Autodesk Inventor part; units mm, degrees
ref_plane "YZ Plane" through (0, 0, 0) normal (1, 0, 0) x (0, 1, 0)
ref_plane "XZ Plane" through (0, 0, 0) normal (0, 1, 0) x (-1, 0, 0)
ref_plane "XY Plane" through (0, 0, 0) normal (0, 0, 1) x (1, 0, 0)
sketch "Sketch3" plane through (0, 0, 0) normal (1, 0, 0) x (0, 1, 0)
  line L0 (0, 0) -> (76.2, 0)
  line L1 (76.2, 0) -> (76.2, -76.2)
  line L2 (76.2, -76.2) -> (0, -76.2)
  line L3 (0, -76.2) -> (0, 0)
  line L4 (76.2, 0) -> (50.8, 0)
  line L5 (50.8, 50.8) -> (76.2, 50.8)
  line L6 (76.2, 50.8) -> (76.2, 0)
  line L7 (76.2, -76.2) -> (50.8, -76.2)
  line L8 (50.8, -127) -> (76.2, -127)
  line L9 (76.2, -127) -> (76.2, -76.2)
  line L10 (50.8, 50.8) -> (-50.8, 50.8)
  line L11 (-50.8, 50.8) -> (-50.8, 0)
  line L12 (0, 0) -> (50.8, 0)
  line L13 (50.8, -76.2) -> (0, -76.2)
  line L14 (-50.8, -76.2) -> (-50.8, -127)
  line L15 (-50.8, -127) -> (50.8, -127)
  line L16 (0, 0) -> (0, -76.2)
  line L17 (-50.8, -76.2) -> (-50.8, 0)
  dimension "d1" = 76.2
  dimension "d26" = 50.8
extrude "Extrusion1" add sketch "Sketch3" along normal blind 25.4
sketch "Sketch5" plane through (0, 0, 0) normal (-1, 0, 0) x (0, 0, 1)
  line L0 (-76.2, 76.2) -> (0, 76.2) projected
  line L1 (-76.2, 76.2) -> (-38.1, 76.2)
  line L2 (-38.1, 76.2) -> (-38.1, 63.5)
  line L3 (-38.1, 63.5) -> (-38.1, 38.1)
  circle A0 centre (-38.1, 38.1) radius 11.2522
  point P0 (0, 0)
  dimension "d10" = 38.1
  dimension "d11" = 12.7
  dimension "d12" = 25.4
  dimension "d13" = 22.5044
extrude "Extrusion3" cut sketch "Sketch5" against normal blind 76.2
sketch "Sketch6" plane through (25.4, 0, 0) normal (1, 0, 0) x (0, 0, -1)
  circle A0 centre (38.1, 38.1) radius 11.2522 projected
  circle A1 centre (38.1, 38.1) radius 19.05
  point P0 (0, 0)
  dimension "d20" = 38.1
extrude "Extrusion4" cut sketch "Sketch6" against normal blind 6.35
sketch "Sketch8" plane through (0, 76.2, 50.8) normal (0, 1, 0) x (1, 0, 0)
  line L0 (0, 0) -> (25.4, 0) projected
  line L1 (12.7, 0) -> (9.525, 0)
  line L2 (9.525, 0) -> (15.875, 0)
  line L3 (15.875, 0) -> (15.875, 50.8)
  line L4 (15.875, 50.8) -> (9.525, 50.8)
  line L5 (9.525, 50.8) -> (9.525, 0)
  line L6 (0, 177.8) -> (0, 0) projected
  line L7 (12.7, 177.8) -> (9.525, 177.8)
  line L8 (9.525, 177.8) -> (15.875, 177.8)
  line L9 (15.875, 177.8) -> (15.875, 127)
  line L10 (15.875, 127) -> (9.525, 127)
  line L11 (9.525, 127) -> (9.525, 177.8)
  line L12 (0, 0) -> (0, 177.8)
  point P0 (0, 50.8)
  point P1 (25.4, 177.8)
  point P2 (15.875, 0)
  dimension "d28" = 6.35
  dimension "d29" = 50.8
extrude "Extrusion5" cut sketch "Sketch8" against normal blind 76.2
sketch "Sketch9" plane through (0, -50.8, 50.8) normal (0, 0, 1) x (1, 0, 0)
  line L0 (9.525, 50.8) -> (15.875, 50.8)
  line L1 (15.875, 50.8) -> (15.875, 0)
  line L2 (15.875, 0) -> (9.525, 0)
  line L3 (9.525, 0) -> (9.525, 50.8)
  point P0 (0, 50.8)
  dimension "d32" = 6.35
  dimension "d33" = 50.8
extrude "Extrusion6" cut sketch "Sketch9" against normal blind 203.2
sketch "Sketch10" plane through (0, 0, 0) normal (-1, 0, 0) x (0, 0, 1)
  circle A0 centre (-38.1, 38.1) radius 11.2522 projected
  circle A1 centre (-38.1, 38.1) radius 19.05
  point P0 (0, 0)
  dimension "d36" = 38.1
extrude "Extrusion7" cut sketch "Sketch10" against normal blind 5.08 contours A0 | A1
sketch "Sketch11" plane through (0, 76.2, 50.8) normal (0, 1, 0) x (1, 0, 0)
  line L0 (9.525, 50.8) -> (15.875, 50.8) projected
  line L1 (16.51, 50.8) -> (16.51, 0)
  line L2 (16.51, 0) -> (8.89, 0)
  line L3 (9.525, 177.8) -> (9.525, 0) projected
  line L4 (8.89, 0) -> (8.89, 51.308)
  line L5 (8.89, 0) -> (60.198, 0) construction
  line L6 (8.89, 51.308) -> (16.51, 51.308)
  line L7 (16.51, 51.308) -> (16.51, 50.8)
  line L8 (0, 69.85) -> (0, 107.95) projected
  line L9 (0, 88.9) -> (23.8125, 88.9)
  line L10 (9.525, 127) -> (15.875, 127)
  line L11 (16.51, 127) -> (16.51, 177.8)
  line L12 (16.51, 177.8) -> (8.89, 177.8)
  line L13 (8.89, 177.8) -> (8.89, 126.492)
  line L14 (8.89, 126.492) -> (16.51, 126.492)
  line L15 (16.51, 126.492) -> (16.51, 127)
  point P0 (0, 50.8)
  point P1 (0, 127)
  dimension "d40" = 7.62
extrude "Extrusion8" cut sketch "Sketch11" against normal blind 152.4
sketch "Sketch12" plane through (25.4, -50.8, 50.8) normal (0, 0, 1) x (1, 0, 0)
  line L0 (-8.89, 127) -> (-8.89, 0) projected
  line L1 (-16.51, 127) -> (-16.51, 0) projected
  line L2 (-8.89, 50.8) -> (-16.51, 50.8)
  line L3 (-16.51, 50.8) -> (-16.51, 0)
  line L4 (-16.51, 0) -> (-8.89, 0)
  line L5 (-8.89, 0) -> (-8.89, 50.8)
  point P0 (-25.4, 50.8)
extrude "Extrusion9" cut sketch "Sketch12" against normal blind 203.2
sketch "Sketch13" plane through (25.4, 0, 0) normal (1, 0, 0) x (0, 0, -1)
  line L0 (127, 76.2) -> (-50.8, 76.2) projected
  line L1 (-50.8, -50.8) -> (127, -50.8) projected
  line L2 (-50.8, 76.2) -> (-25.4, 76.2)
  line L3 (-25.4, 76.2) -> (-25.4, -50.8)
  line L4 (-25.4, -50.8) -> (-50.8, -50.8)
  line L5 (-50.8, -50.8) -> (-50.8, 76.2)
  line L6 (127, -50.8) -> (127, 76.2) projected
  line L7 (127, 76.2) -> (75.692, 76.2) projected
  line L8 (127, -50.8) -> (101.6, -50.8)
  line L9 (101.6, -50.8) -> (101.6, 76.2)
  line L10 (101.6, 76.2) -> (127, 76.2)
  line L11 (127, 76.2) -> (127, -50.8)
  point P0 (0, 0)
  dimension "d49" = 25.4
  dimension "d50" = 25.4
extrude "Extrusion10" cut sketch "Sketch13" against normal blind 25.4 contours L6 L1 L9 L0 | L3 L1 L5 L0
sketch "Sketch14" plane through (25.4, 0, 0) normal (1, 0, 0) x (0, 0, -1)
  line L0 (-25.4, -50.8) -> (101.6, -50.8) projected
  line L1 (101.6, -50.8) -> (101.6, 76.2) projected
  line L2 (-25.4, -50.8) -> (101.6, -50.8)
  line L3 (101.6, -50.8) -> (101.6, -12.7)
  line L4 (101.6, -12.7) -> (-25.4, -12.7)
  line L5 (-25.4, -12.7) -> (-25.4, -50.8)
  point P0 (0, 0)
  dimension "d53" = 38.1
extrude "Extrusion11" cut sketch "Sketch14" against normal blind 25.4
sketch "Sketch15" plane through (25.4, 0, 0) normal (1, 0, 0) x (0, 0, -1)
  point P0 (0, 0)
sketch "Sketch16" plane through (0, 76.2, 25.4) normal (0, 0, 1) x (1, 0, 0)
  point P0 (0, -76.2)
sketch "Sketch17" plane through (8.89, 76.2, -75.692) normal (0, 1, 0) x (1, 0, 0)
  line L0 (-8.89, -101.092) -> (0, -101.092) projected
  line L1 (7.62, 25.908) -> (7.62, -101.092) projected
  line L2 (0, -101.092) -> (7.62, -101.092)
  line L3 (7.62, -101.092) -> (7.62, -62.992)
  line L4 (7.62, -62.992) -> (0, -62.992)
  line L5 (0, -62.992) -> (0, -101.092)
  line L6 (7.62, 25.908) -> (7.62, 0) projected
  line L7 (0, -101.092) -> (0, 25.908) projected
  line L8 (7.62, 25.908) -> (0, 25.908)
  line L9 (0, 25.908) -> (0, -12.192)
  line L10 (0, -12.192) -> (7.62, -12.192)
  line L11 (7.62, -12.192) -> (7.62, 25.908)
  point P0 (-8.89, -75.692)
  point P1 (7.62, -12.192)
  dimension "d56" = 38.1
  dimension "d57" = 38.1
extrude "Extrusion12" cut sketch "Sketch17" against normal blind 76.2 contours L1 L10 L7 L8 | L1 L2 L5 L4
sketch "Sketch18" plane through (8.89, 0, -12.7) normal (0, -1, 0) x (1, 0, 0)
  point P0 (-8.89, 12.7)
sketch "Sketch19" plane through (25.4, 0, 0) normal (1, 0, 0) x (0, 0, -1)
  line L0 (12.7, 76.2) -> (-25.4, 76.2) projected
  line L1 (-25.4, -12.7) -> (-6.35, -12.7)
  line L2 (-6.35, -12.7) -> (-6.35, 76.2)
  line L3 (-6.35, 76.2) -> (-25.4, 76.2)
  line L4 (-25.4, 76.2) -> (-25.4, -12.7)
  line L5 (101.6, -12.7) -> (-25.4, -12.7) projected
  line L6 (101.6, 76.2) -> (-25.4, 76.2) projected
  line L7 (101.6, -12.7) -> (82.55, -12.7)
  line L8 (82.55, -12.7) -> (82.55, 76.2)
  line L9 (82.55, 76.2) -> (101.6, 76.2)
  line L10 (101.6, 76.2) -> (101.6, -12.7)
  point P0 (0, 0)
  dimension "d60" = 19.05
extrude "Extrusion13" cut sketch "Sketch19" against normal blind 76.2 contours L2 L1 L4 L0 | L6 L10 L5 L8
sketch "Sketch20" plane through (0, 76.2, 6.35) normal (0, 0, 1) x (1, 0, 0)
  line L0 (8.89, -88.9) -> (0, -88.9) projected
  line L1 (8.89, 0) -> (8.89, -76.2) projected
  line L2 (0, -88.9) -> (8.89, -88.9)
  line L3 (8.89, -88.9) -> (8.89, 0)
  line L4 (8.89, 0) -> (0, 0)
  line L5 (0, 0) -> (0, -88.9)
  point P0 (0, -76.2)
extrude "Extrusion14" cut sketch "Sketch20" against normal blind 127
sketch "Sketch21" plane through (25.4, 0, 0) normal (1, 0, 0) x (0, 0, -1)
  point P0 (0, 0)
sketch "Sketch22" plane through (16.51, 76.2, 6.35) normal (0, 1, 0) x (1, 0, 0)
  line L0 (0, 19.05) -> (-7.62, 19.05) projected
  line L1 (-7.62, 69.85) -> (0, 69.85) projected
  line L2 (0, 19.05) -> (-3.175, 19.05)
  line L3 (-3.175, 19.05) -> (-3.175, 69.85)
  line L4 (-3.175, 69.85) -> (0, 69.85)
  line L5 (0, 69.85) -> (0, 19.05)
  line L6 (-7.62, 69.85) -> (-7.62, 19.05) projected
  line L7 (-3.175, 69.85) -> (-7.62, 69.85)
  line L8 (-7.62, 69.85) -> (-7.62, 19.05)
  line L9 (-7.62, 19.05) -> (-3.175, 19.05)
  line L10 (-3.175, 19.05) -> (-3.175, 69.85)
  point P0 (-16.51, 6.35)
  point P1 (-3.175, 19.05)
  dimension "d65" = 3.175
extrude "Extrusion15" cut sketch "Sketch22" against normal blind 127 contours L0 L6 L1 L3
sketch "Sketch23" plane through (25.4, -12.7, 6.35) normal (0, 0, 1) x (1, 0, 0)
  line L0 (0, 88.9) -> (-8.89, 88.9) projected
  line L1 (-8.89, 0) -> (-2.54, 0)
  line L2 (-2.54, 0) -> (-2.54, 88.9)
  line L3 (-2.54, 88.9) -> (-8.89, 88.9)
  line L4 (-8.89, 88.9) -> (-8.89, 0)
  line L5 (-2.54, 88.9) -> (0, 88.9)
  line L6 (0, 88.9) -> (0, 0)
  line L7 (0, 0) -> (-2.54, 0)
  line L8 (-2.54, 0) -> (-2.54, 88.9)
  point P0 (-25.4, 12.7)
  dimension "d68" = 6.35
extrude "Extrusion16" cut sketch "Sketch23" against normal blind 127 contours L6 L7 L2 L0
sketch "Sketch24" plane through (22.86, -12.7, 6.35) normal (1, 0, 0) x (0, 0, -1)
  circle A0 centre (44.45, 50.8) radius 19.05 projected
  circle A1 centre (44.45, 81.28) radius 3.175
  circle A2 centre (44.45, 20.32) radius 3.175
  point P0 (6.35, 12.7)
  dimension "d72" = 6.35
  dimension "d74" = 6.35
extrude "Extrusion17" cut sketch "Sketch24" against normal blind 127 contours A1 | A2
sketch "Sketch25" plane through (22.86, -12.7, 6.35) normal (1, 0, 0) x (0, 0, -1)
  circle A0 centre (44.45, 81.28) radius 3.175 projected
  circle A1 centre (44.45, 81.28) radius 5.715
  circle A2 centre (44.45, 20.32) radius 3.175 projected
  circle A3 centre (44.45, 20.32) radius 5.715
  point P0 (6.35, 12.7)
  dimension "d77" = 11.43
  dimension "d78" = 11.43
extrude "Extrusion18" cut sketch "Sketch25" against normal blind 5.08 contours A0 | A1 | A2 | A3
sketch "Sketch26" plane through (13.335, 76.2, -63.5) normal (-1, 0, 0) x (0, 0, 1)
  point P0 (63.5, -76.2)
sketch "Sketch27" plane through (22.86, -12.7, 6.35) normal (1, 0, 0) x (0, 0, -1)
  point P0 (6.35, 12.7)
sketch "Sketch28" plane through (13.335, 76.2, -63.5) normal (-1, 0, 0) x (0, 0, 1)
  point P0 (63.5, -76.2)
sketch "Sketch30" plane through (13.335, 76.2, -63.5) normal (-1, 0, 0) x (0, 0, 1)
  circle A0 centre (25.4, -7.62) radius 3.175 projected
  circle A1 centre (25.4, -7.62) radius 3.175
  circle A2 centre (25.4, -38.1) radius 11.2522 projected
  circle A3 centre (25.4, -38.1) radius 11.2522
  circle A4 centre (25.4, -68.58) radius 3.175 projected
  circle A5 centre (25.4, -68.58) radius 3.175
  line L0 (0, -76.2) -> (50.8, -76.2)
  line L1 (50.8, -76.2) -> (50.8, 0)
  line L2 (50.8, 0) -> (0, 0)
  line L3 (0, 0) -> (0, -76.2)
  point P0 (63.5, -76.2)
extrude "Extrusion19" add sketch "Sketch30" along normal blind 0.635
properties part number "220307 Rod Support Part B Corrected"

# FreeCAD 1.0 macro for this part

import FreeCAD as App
import Part
import Sketcher
Q = App.Units.Quantity

doc = App.newDocument("Part")
body = doc.addObject("PartDesign::Body", "Body")

sketch1 = body.newObject("Sketcher::SketchObject", "Sketch")
sketch1.AttachmentSupport = (doc.getObject("YZ_Plane"), [""])
sketch1.MapMode = "FlatFace"
sketch1.addGeometry(Part.LineSegment(App.Vector(76, -127, 0), App.Vector(76, 51, 0)), False)
sketch1.addGeometry(Part.LineSegment(App.Vector(76, 51, 0), App.Vector(-51, 51, 0)), False)
sketch1.addGeometry(Part.LineSegment(App.Vector(-51, 51, 0), App.Vector(-51, -127, 0)), False)
sketch1.addGeometry(Part.LineSegment(App.Vector(-51, -127, 0), App.Vector(76, -127, 0)), False)
sketch1.addConstraint(Sketcher.Constraint("Coincident", 0, 2, 1, 1))
sketch1.addConstraint(Sketcher.Constraint("Coincident", 1, 2, 2, 1))
sketch1.addConstraint(Sketcher.Constraint("Coincident", 2, 2, 3, 1))
sketch1.addConstraint(Sketcher.Constraint("Coincident", 3, 2, 0, 1))
sketch1.addConstraint(Sketcher.Constraint("Vertical", 0))
sketch1.addConstraint(Sketcher.Constraint("Horizontal", 1))
sketch1.addConstraint(Sketcher.Constraint("Vertical", 2))
sketch1.addConstraint(Sketcher.Constraint("Horizontal", 3))
sketch1.addConstraint(Sketcher.Constraint("DistanceX", -1, 1, 0, 2, Q("3 in")))
sketch1.addConstraint(Sketcher.Constraint("DistanceY", -1, 1, 0, 2, Q("2 in")))
sketch1.addConstraint(Sketcher.Constraint("DistanceX", 1, 2, -1, 1, Q("2 in")))
sketch1.addConstraint(Sketcher.Constraint("DistanceY", 0, 1, 0, 2, Q("7 in")))
pad1 = body.newObject("PartDesign::Pad", "Pad")
pad1.Profile = sketch1
pad1.Length = Q("1 in")

sketch2 = body.newObject("Sketcher::SketchObject", "Sketch001")
sketch2.AttachmentSupport = (doc.getObject("YZ_Plane"), [""])
sketch2.MapMode = "FlatFace"
sketch2.addGeometry(Part.Circle(App.Vector(38, -38, 0), App.Vector(0, 0, 1), 11), False)
sketch2.addConstraint(Sketcher.Constraint("Diameter", 0, Q("0.886 in")))
sketch2.addConstraint(Sketcher.Constraint("DistanceX", -1, 1, 0, 3, Q("1.5 in")))
sketch2.addConstraint(Sketcher.Constraint("DistanceY", 0, 3, -1, 1, Q("1.5 in")))
pocket1 = body.newObject("PartDesign::Pocket", "Pocket")
pocket1.Profile = sketch2
pocket1.Length = Q("3 in")
pocket1.Reversed = True

sketch3 = body.newObject("Sketcher::SketchObject", "Sketch002")
sketch3.AttachmentSupport = (doc.getObject("YZ_Plane"), [""])
sketch3.MapMode = "FlatFace"
sketch3.AttachmentOffset = App.Placement(App.Vector(0, 0, 1 * 25.4), App.Rotation())
sketch3.addGeometry(Part.Circle(App.Vector(38, -38, 0), App.Vector(0, 0, 1), 19), False)
sketch3.addGeometry(Part.Circle(App.Vector(38, -38, 0), App.Vector(0, 0, 1), 11), False)
sketch3.addConstraint(Sketcher.Constraint("Coincident", 1, 3, 0, 3))
sketch3.addConstraint(Sketcher.Constraint("Diameter", 0, Q("1.5 in")))
sketch3.addConstraint(Sketcher.Constraint("DistanceX", -1, 1, 0, 3, Q("1.5 in")))
sketch3.addConstraint(Sketcher.Constraint("DistanceY", 0, 3, -1, 1, Q("1.5 in")))
sketch3.addConstraint(Sketcher.Constraint("Diameter", 1, Q("0.886 in")))
pocket2 = body.newObject("PartDesign::Pocket", "Pocket001")
pocket2.Profile = sketch3
pocket2.Length = Q("0.25 in")

sketch4 = body.newObject("Sketcher::SketchObject", "Sketch003")
sketch4.AttachmentSupport = (doc.getObject("XZ_Plane"), [""])
sketch4.MapMode = "FlatFace"
sketch4.AttachmentOffset = App.Placement(App.Vector(0, 0, -3 * 25.4), App.Rotation())
sketch4.addGeometry(Part.LineSegment(App.Vector(10, 0, 0), App.Vector(10, 51, 0)), False)
sketch4.addGeometry(Part.LineSegment(App.Vector(10, 51, 0), App.Vector(16, 51, 0)), False)
sketch4.addGeometry(Part.LineSegment(App.Vector(16, 51, 0), App.Vector(16, 0, 0)), False)
sketch4.addGeometry(Part.LineSegment(App.Vector(16, 0, 0), App.Vector(10, 0, 0)), False)
sketch4.addGeometry(Part.LineSegment(App.Vector(16, -127, 0), App.Vector(10, -127, 0)), False)
sketch4.addGeometry(Part.LineSegment(App.Vector(10, -127, 0), App.Vector(10, -76, 0)), False)
sketch4.addGeometry(Part.LineSegment(App.Vector(10, -76, 0), App.Vector(16, -76, 0)), False)
sketch4.addGeometry(Part.LineSegment(App.Vector(16, -76, 0), App.Vector(16, -127, 0)), False)
sketch4.addConstraint(Sketcher.Constraint("Coincident", 0, 2, 1, 1))
sketch4.addConstraint(Sketcher.Constraint("Coincident", 1, 2, 2, 1))
sketch4.addConstraint(Sketcher.Constraint("Coincident", 2, 2, 3, 1))
sketch4.addConstraint(Sketcher.Constraint("Coincident", 3, 2, 0, 1))
sketch4.addConstraint(Sketcher.Constraint("Coincident", 4, 2, 5, 1))
sketch4.addConstraint(Sketcher.Constraint("Coincident", 5, 2, 6, 1))
sketch4.addConstraint(Sketcher.Constraint("Coincident", 6, 2, 7, 1))
sketch4.addConstraint(Sketcher.Constraint("Coincident", 7, 2, 4, 1))
sketch4.addConstraint(Sketcher.Constraint("Vertical", 0))
sketch4.addConstraint(Sketcher.Constraint("Horizontal", 1))
sketch4.addConstraint(Sketcher.Constraint("Vertical", 2))
sketch4.addConstraint(Sketcher.Constraint("Horizontal", 3))
sketch4.addConstraint(Sketcher.Constraint("Horizontal", 4))
sketch4.addConstraint(Sketcher.Constraint("Vertical", 5))
sketch4.addConstraint(Sketcher.Constraint("Horizontal", 6))
sketch4.addConstraint(Sketcher.Constraint("Vertical", 7))
sketch4.addConstraint(Sketcher.Constraint("PointOnObject", 2, 2, -1))
sketch4.addConstraint(Sketcher.Constraint("Vertical", 3, 2, 4, 2))
sketch4.addConstraint(Sketcher.Constraint("Vertical", 2, 2, 6, 2))
sketch4.addConstraint(Sketcher.Constraint("Equal", 2, 5))
sketch4.addConstraint(Sketcher.Constraint("DistanceY", 0, 1, 0, 2, Q("2 in")))
sketch4.addConstraint(Sketcher.Constraint("DistanceX", 1, 1, 1, 2, Q("0.25 in")))
sketch4.addConstraint(Sketcher.Constraint("DistanceY", 4, 2, -1, 1, Q("5 in")))
sketch4.addConstraint(Sketcher.Constraint("DistanceX", -1, 1, 0, 2, Q("0.375 in")))
pocket3 = body.newObject("PartDesign::Pocket", "Pocket002")
pocket3.Profile = sketch4
pocket3.Length = Q("3 in")
pocket3.Reversed = True

sketch5 = body.newObject("Sketcher::SketchObject", "Sketch004")
sketch5.AttachmentSupport = (doc.getObject("XY_Plane"), [""])
sketch5.MapMode = "FlatFace"
sketch5.AttachmentOffset = App.Placement(App.Vector(0, 0, 2 * 25.4), App.Rotation())
sketch5.addGeometry(Part.LineSegment(App.Vector(16, 0, 0), App.Vector(10, 0, 0)), False)
sketch5.addGeometry(Part.LineSegment(App.Vector(10, 0, 0), App.Vector(10, -51, 0)), False)
sketch5.addGeometry(Part.LineSegment(App.Vector(10, -51, 0), App.Vector(16, -51, 0)), False)
sketch5.addGeometry(Part.LineSegment(App.Vector(16, -51, 0), App.Vector(16, 0, 0)), False)
sketch5.addConstraint(Sketcher.Constraint("Coincident", 0, 2, 1, 1))
sketch5.addConstraint(Sketcher.Constraint("Coincident", 1, 2, 2, 1))
sketch5.addConstraint(Sketcher.Constraint("Coincident", 2, 2, 3, 1))
sketch5.addConstraint(Sketcher.Constraint("Coincident", 3, 2, 0, 1))
sketch5.addConstraint(Sketcher.Constraint("Horizontal", 0))
sketch5.addConstraint(Sketcher.Constraint("Vertical", 1))
sketch5.addConstraint(Sketcher.Constraint("Horizontal", 2))
sketch5.addConstraint(Sketcher.Constraint("Vertical", 3))
sketch5.addConstraint(Sketcher.Constraint("PointOnObject", 0, 2, -1))
sketch5.addConstraint(Sketcher.Constraint("DistanceY", 1, 2, 1, 1, Q("2 in")))
sketch5.addConstraint(Sketcher.Constraint("DistanceX", 0, 2, 0, 1, Q("0.25 in")))
sketch5.addConstraint(Sketcher.Constraint("DistanceX", -1, 1, 0, 2, Q("0.375 in")))
pocket4 = body.newObject("PartDesign::Pocket", "Pocket003")
pocket4.Profile = sketch5
pocket4.Length = Q("8 in")

sketch6 = body.newObject("Sketcher::SketchObject", "Sketch005")
sketch6.AttachmentSupport = (doc.getObject("YZ_Plane"), [""])
sketch6.MapMode = "FlatFace"
sketch6.addGeometry(Part.Circle(App.Vector(38, -38, 0), App.Vector(0, 0, 1), 19), False)
sketch6.addConstraint(Sketcher.Constraint("Diameter", 0, Q("1.5 in")))
sketch6.addConstraint(Sketcher.Constraint("DistanceX", -1, 1, 0, 3, Q("1.5 in")))
sketch6.addConstraint(Sketcher.Constraint("DistanceY", 0, 3, -1, 1, Q("1.5 in")))
pocket5 = body.newObject("PartDesign::Pocket", "Pocket004")
pocket5.Profile = sketch6
pocket5.Length = Q("0.2 in")
pocket5.Reversed = True

sketch7 = body.newObject("Sketcher::SketchObject", "Sketch006")
sketch7.AttachmentSupport = (doc.getObject("XZ_Plane"), [""])
sketch7.MapMode = "FlatFace"
sketch7.AttachmentOffset = App.Placement(App.Vector(0, 0, -3 * 25.4), App.Rotation())
sketch7.addGeometry(Part.LineSegment(App.Vector(9, -76, 0), App.Vector(17, -76, 0)), False)
sketch7.addGeometry(Part.LineSegment(App.Vector(17, -76, 0), App.Vector(17, -127, 0)), False)
sketch7.addGeometry(Part.LineSegment(App.Vector(17, -127, 0), App.Vector(9, -127, 0)), False)
sketch7.addGeometry(Part.LineSegment(App.Vector(9, -127, 0), App.Vector(9, -76, 0)), False)
sketch7.addGeometry(Part.LineSegment(App.Vector(17, 51, 0), App.Vector(17, -1, 0)), False)
sketch7.addGeometry(Part.LineSegment(App.Vector(17, -1, 0), App.Vector(9, -1, 0)), False)
sketch7.addGeometry(Part.LineSegment(App.Vector(9, -1, 0), App.Vector(9, 51, 0)), False)
sketch7.addGeometry(Part.LineSegment(App.Vector(9, 51, 0), App.Vector(17, 51, 0)), False)
sketch7.addConstraint(Sketcher.Constraint("Coincident", 0, 2, 1, 1))
sketch7.addConstraint(Sketcher.Constraint("Coincident", 1, 2, 2, 1))
sketch7.addConstraint(Sketcher.Constraint("Coincident", 2, 2, 3, 1))
sketch7.addConstraint(Sketcher.Constraint("Coincident", 3, 2, 0, 1))
sketch7.addConstraint(Sketcher.Constraint("Coincident", 4, 2, 5, 1))
sketch7.addConstraint(Sketcher.Constraint("Coincident", 5, 2, 6, 1))
sketch7.addConstraint(Sketcher.Constraint("Coincident", 6, 2, 7, 1))
sketch7.addConstraint(Sketcher.Constraint("Coincident", 7, 2, 4, 1))
sketch7.addConstraint(Sketcher.Constraint("Horizontal", 0))
sketch7.addConstraint(Sketcher.Constraint("Vertical", 1))
sketch7.addConstraint(Sketcher.Constraint("Horizontal", 2))
sketch7.addConstraint(Sketcher.Constraint("Vertical", 3))
sketch7.addConstraint(Sketcher.Constraint("Vertical", 4))
sketch7.addConstraint(Sketcher.Constraint("Horizontal", 5))
sketch7.addConstraint(Sketcher.Constraint("Vertical", 6))
sketch7.addConstraint(Sketcher.Constraint("Horizontal", 7))
sketch7.addConstraint(Sketcher.Constraint("Vertical", 1, 2, 4, 2))
sketch7.addConstraint(Sketcher.Constraint("Vertical", 3, 2, 5, 2))
sketch7.addConstraint(Sketcher.Constraint("Equal", 3, 4))
sketch7.addConstraint(Sketcher.Constraint("DistanceX", 0, 1, 0, 2, Q("0.3 in")))
sketch7.addConstraint(Sketcher.Constraint("DistanceY", 1, 2, -1, 1, Q("5 in")))
sketch7.addConstraint(Sketcher.Constraint("DistanceY", -1, 1, 6, 2, Q("2 in")))
sketch7.addConstraint(Sketcher.Constraint("DistanceY", 1, 2, 1, 1, Q("2.02 in")))
sketch7.addConstraint(Sketcher.Constraint("DistanceX", -1, 1, 0, 2, Q("0.65 in")))
pocket6 = body.newObject("PartDesign::Pocket", "Pocket005")
pocket6.Profile = sketch7
pocket6.Length = Q("6 in")
pocket6.Reversed = True

sketch8 = body.newObject("Sketcher::SketchObject", "Sketch007")
sketch8.AttachmentSupport = (doc.getObject("XY_Plane"), [""])
sketch8.MapMode = "FlatFace"
sketch8.AttachmentOffset = App.Placement(App.Vector(0, 0, 2 * 25.4), App.Rotation())
sketch8.addGeometry(Part.LineSegment(App.Vector(17, -51, 0), App.Vector(17, 0, 0)), False)
sketch8.addGeometry(Part.LineSegment(App.Vector(17, 0, 0), App.Vector(9, 0, 0)), False)
sketch8.addGeometry(Part.LineSegment(App.Vector(9, 0, 0), App.Vector(9, -51, 0)), False)
sketch8.addGeometry(Part.LineSegment(App.Vector(9, -51, 0), App.Vector(17, -51, 0)), False)
sketch8.addConstraint(Sketcher.Constraint("Coincident", 0, 2, 1, 1))
sketch8.addConstraint(Sketcher.Constraint("Coincident", 1, 2, 2, 1))
sketch8.addConstraint(Sketcher.Constraint("Coincident", 2, 2, 3, 1))
sketch8.addConstraint(Sketcher.Constraint("Coincident", 3, 2, 0, 1))
sketch8.addConstraint(Sketcher.Constraint("Vertical", 0))
sketch8.addConstraint(Sketcher.Constraint("Horizontal", 1))
sketch8.addConstraint(Sketcher.Constraint("Vertical", 2))
sketch8.addConstraint(Sketcher.Constraint("Horizontal", 3))
sketch8.addConstraint(Sketcher.Constraint("PointOnObject", 0, 2, -1))
sketch8.addConstraint(Sketcher.Constraint("DistanceY", 0, 1, 0, 2, Q("2 in")))
sketch8.addConstraint(Sketcher.Constraint("DistanceX", 1, 2, 1, 1, Q("0.3 in")))
sketch8.addConstraint(Sketcher.Constraint("DistanceX", -1, 1, 0, 2, Q("0.65 in")))
pocket7 = body.newObject("PartDesign::Pocket", "Pocket006")
pocket7.Profile = sketch8
pocket7.Length = Q("8 in")

sketch9 = body.newObject("Sketcher::SketchObject", "Sketch008")
sketch9.AttachmentSupport = (doc.getObject("YZ_Plane"), [""])
sketch9.MapMode = "FlatFace"
sketch9.AttachmentOffset = App.Placement(App.Vector(0, 0, 1 * 25.4), App.Rotation())
sketch9.addGeometry(Part.LineSegment(App.Vector(-51, -127, 0), App.Vector(76, -127, 0)), False)
sketch9.addGeometry(Part.LineSegment(App.Vector(76, -127, 0), App.Vector(76, -102, 0)), False)
sketch9.addGeometry(Part.LineSegment(App.Vector(76, -102, 0), App.Vector(-51, -102, 0)), False)
sketch9.addGeometry(Part.LineSegment(App.Vector(-51, -102, 0), App.Vector(-51, -127, 0)), False)
sketch9.addGeometry(Part.LineSegment(App.Vector(-51, 25, 0), App.Vector(76, 25, 0)), False)
sketch9.addGeometry(Part.LineSegment(App.Vector(76, 25, 0), App.Vector(76, 51, 0)), False)
sketch9.addGeometry(Part.LineSegment(App.Vector(76, 51, 0), App.Vector(-51, 51, 0)), False)
sketch9.addGeometry(Part.LineSegment(App.Vector(-51, 51, 0), App.Vector(-51, 25, 0)), False)
sketch9.addConstraint(Sketcher.Constraint("Coincident", 0, 2, 1, 1))
sketch9.addConstraint(Sketcher.Constraint("Coincident", 1, 2, 2, 1))
sketch9.addConstraint(Sketcher.Constraint("Coincident", 2, 2, 3, 1))
sketch9.addConstraint(Sketcher.Constraint("Coincident", 3, 2, 0, 1))
sketch9.addConstraint(Sketcher.Constraint("Coincident", 4, 2, 5, 1))
sketch9.addConstraint(Sketcher.Constraint("Coincident", 5, 2, 6, 1))
sketch9.addConstraint(Sketcher.Constraint("Coincident", 6, 2, 7, 1))
sketch9.addConstraint(Sketcher.Constraint("Coincident", 7, 2, 4, 1))
sketch9.addConstraint(Sketcher.Constraint("Horizontal", 0))
sketch9.addConstraint(Sketcher.Constraint("Vertical", 1))
sketch9.addConstraint(Sketcher.Constraint("Horizontal", 2))
sketch9.addConstraint(Sketcher.Constraint("Vertical", 3))
sketch9.addConstraint(Sketcher.Constraint("Horizontal", 4))
sketch9.addConstraint(Sketcher.Constraint("Vertical", 5))
sketch9.addConstraint(Sketcher.Constraint("Horizontal", 6))
sketch9.addConstraint(Sketcher.Constraint("Vertical", 7))
sketch9.addConstraint(Sketcher.Constraint("Vertical", 1, 2, 4, 2))
sketch9.addConstraint(Sketcher.Constraint("Vertical", 3, 2, 6, 2))
sketch9.addConstraint(Sketcher.Constraint("Equal", 3, 5))
sketch9.addConstraint(Sketcher.Constraint("DistanceY", 1, 1, 1, 2, Q("1 in")))
sketch9.addConstraint(Sketcher.Constraint("DistanceY", -1, 1, 4, 2, Q("1 in")))
sketch9.addConstraint(Sketcher.Constraint("DistanceX", 0, 1, 0, 2, Q("5 in")))
sketch9.addConstraint(Sketcher.Constraint("DistanceX", -1, 1, 0, 2, Q("3 in")))
sketch9.addConstraint(Sketcher.Constraint("DistanceY", 0, 2, -1, 1, Q("5 in")))
pocket8 = body.newObject("PartDesign::Pocket", "Pocket007")
pocket8.Profile = sketch9
pocket8.Length = Q("1 in")

sketch10 = body.newObject("Sketcher::SketchObject", "Sketch009")
sketch10.AttachmentSupport = (doc.getObject("YZ_Plane"), [""])
sketch10.MapMode = "FlatFace"
sketch10.AttachmentOffset = App.Placement(App.Vector(0, 0, 1 * 25.4), App.Rotation())
sketch10.addGeometry(Part.LineSegment(App.Vector(-13, 25, 0), App.Vector(-51, 25, 0)), False)
sketch10.addGeometry(Part.LineSegment(App.Vector(-51, 25, 0), App.Vector(-51, -102, 0)), False)
sketch10.addGeometry(Part.LineSegment(App.Vector(-51, -102, 0), App.Vector(-13, -102, 0)), False)
sketch10.addGeometry(Part.LineSegment(App.Vector(-13, -102, 0), App.Vector(-13, 25, 0)), False)
sketch10.addConstraint(Sketcher.Constraint("Coincident", 0, 2, 1, 1))
sketch10.addConstraint(Sketcher.Constraint("Coincident", 1, 2, 2, 1))
sketch10.addConstraint(Sketcher.Constraint("Coincident", 2, 2, 3, 1))
sketch10.addConstraint(Sketcher.Constraint("Coincident", 3, 2, 0, 1))
sketch10.addConstraint(Sketcher.Constraint("Horizontal", 0))
sketch10.addConstraint(Sketcher.Constraint("Vertical", 1))
sketch10.addConstraint(Sketcher.Constraint("Horizontal", 2))
sketch10.addConstraint(Sketcher.Constraint("Vertical", 3))
sketch10.addConstraint(Sketcher.Constraint("DistanceX", 0, 2, 0, 1, Q("1.5 in")))
sketch10.addConstraint(Sketcher.Constraint("DistanceY", 1, 2, 1, 1, Q("5 in")))
sketch10.addConstraint(Sketcher.Constraint("DistanceX", 0, 2, -1, 1, Q("2 in")))
sketch10.addConstraint(Sketcher.Constraint("DistanceY", -1, 1, 0, 2, Q("1 in")))
pocket9 = body.newObject("PartDesign::Pocket", "Pocket008")
pocket9.Profile = sketch10
pocket9.Length = Q("1 in")

sketch11 = body.newObject("Sketcher::SketchObject", "Sketch010")
sketch11.AttachmentSupport = (doc.getObject("XZ_Plane"), [""])
sketch11.MapMode = "FlatFace"
sketch11.AttachmentOffset = App.Placement(App.Vector(0, 0, -3 * 25.4), App.Rotation())
sketch11.addGeometry(Part.LineSegment(App.Vector(17, -64, 0), App.Vector(17, -102, 0)), False)
sketch11.addGeometry(Part.LineSegment(App.Vector(17, -102, 0), App.Vector(9, -102, 0)), False)
sketch11.addGeometry(Part.LineSegment(App.Vector(9, -102, 0), App.Vector(9, -64, 0)), False)
sketch11.addGeometry(Part.LineSegment(App.Vector(9, -64, 0), App.Vector(17, -64, 0)), False)
sketch11.addGeometry(Part.LineSegment(App.Vector(17, 25, 0), App.Vector(17, -13, 0)), False)
sketch11.addGeometry(Part.LineSegment(App.Vector(17, -13, 0), App.Vector(9, -13, 0)), False)
sketch11.addGeometry(Part.LineSegment(App.Vector(9, -13, 0), App.Vector(9, 25, 0)), False)
sketch11.addGeometry(Part.LineSegment(App.Vector(9, 25, 0), App.Vector(17, 25, 0)), False)
sketch11.addConstraint(Sketcher.Constraint("Coincident", 0, 2, 1, 1))
sketch11.addConstraint(Sketcher.Constraint("Coincident", 1, 2, 2, 1))
sketch11.addConstraint(Sketcher.Constraint("Coincident", 2, 2, 3, 1))
sketch11.addConstraint(Sketcher.Constraint("Coincident", 3, 2, 0, 1))
sketch11.addConstraint(Sketcher.Constraint("Coincident", 4, 2, 5, 1))
sketch11.addConstraint(Sketcher.Constraint("Coincident", 5, 2, 6, 1))
sketch11.addConstraint(Sketcher.Constraint("Coincident", 6, 2, 7, 1))
sketch11.addConstraint(Sketcher.Constraint("Coincident", 7, 2, 4, 1))
sketch11.addConstraint(Sketcher.Constraint("Vertical", 0))
sketch11.addConstraint(Sketcher.Constraint("Horizontal", 1))
sketch11.addConstraint(Sketcher.Constraint("Vertical", 2))
sketch11.addConstraint(Sketcher.Constraint("Horizontal", 3))
sketch11.addConstraint(Sketcher.Constraint("Vertical", 4))
sketch11.addConstraint(Sketcher.Constraint("Horizontal", 5))
sketch11.addConstraint(Sketcher.Constraint("Vertical", 6))
sketch11.addConstraint(Sketcher.Constraint("Horizontal", 7))
sketch11.addConstraint(Sketcher.Constraint("Vertical", 3, 2, 4, 2))
sketch11.addConstraint(Sketcher.Constraint("Vertical", 2, 2, 5, 2))
sketch11.addConstraint(Sketcher.Constraint("Equal", 2, 4))
sketch11.addConstraint(Sketcher.Constraint("DistanceY", 0, 2, 0, 1, Q("1.5 in")))
sketch11.addConstraint(Sketcher.Constraint("DistanceX", 1, 2, 1, 1, Q("0.3 in")))
sketch11.addConstraint(Sketcher.Constraint("DistanceY", 0, 2, -1, 1, Q("4 in")))
sketch11.addConstraint(Sketcher.Constraint("DistanceY", -1, 1, 6, 2, Q("1 in")))
sketch11.addConstraint(Sketcher.Constraint("DistanceX", -1, 1, 0, 2, Q("0.65 in")))
pocket10 = body.newObject("PartDesign::Pocket", "Pocket009")
pocket10.Profile = sketch11
pocket10.Length = Q("3 in")
pocket10.Reversed = True

sketch12 = body.newObject("Sketcher::SketchObject", "Sketch011")
sketch12.AttachmentSupport = (doc.getObject("YZ_Plane"), [""])
sketch12.MapMode = "FlatFace"
sketch12.AttachmentOffset = App.Placement(App.Vector(0, 0, 1 * 25.4), App.Rotation())
sketch12.addGeometry(Part.LineSegment(App.Vector(-13, 6, 0), App.Vector(76, 6, 0)), False)
sketch12.addGeometry(Part.LineSegment(App.Vector(76, 6, 0), App.Vector(76, 25, 0)), False)
sketch12.addGeometry(Part.LineSegment(App.Vector(76, 25, 0), App.Vector(-13, 25, 0)), False)
sketch12.addGeometry(Part.LineSegment(App.Vector(-13, 25, 0), App.Vector(-13, 6, 0)), False)
sketch12.addGeometry(Part.LineSegment(App.Vector(76, -102, 0), App.Vector(76, -83, 0)), False)
sketch12.addGeometry(Part.LineSegment(App.Vector(76, -83, 0), App.Vector(-13, -83, 0)), False)
sketch12.addGeometry(Part.LineSegment(App.Vector(-13, -83, 0), App.Vector(-13, -102, 0)), False)
sketch12.addGeometry(Part.LineSegment(App.Vector(-13, -102, 0), App.Vector(76, -102, 0)), False)
sketch12.addConstraint(Sketcher.Constraint("Coincident", 0, 2, 1, 1))
sketch12.addConstraint(Sketcher.Constraint("Coincident", 1, 2, 2, 1))
sketch12.addConstraint(Sketcher.Constraint("Coincident", 2, 2, 3, 1))
sketch12.addConstraint(Sketcher.Constraint("Coincident", 3, 2, 0, 1))
sketch12.addConstraint(Sketcher.Constraint("Coincident", 4, 2, 5, 1))
sketch12.addConstraint(Sketcher.Constraint("Coincident", 5, 2, 6, 1))
sketch12.addConstraint(Sketcher.Constraint("Coincident", 6, 2, 7, 1))
sketch12.addConstraint(Sketcher.Constraint("Coincident", 7, 2, 4, 1))
sketch12.addConstraint(Sketcher.Constraint("Horizontal", 0))
sketch12.addConstraint(Sketcher.Constraint("Vertical", 1))
sketch12.addConstraint(Sketcher.Constraint("Horizontal", 2))
sketch12.addConstraint(Sketcher.Constraint("Vertical", 3))
sketch12.addConstraint(Sketcher.Constraint("Vertical", 4))
sketch12.addConstraint(Sketcher.Constraint("Horizontal", 5))
sketch12.addConstraint(Sketcher.Constraint("Vertical", 6))
sketch12.addConstraint(Sketcher.Constraint("Horizontal", 7))
sketch12.addConstraint(Sketcher.Constraint("Vertical", 1, 2, 4, 2))
sketch12.addConstraint(Sketcher.Constraint("Vertical", 3, 2, 5, 2))
sketch12.addConstraint(Sketcher.Constraint("Equal", 3, 4))
sketch12.addConstraint(Sketcher.Constraint("DistanceY", 1, 1, 1, 2, Q("0.75 in")))
sketch12.addConstraint(Sketcher.Constraint("DistanceX", 0, 1, 0, 2, Q("3.5 in")))
sketch12.addConstraint(Sketcher.Constraint("DistanceX", -1, 1, 0, 2, Q("3 in")))
sketch12.addConstraint(Sketcher.Constraint("DistanceY", -1, 1, 1, 2, Q("1 in")))
sketch12.addConstraint(Sketcher.Constraint("DistanceY", 6, 2, -1, 1, Q("4 in")))
pocket11 = body.newObject("PartDesign::Pocket", "Pocket010")
pocket11.Profile = sketch12
pocket11.Length = Q("3 in")

sketch13 = body.newObject("Sketcher::SketchObject", "Sketch012")
sketch13.AttachmentSupport = (doc.getObject("XY_Plane"), [""])
sketch13.MapMode = "FlatFace"
sketch13.AttachmentOffset = App.Placement(App.Vector(0, 0, 0.25 * 25.4), App.Rotation())
sketch13.addGeometry(Part.LineSegment(App.Vector(0, -13, 0), App.Vector(9, -13, 0)), False)
sketch13.addGeometry(Part.LineSegment(App.Vector(9, -13, 0), App.Vector(9, 76, 0)), False)
sketch13.addGeometry(Part.LineSegment(App.Vector(9, 76, 0), App.Vector(0, 76, 0)), False)
sketch13.addGeometry(Part.LineSegment(App.Vector(0, 76, 0), App.Vector(0, -13, 0)), False)
sketch13.addConstraint(Sketcher.Constraint("Coincident", 0, 2, 1, 1))
sketch13.addConstraint(Sketcher.Constraint("Coincident", 1, 2, 2, 1))
sketch13.addConstraint(Sketcher.Constraint("Coincident", 2, 2, 3, 1))
sketch13.addConstraint(Sketcher.Constraint("Coincident", 3, 2, 0, 1))
sketch13.addConstraint(Sketcher.Constraint("Horizontal", 0))
sketch13.addConstraint(Sketcher.Constraint("Vertical", 1))
sketch13.addConstraint(Sketcher.Constraint("Horizontal", 2))
sketch13.addConstraint(Sketcher.Constraint("Vertical", 3))
sketch13.addConstraint(Sketcher.Constraint("PointOnObject", 2, 2, -2))
sketch13.addConstraint(Sketcher.Constraint("DistanceY", 1, 1, 1, 2, Q("3.5 in")))
sketch13.addConstraint(Sketcher.Constraint("DistanceY", -1, 1, 1, 2, Q("3 in")))
sketch13.addConstraint(Sketcher.Constraint("DistanceX", 0, 1, 0, 2, Q("0.35 in")))
pocket12 = body.newObject("PartDesign::Pocket", "Pocket011")
pocket12.Profile = sketch13
pocket12.Length = Q("5 in")

sketch14 = body.newObject("Sketcher::SketchObject", "Sketch013")
sketch14.AttachmentSupport = (doc.getObject("XZ_Plane"), [""])
sketch14.MapMode = "FlatFace"
sketch14.AttachmentOffset = App.Placement(App.Vector(0, 0, -3 * 25.4), App.Rotation())
sketch14.addGeometry(Part.LineSegment(App.Vector(8.9, -12.7, 0), App.Vector(13.3, -12.7, 0)), False)
sketch14.addGeometry(Part.LineSegment(App.Vector(13.3, -12.7, 0), App.Vector(13.3, -63.5, 0)), False)
sketch14.addGeometry(Part.LineSegment(App.Vector(13.3, -63.5, 0), App.Vector(8.9, -63.5, 0)), False)
sketch14.addGeometry(Part.LineSegment(App.Vector(8.9, -63.5, 0), App.Vector(8.9, -12.7, 0)), False)
sketch14.addConstraint(Sketcher.Constraint("Coincident", 0, 2, 1, 1))
sketch14.addConstraint(Sketcher.Constraint("Coincident", 1, 2, 2, 1))
sketch14.addConstraint(Sketcher.Constraint("Coincident", 2, 2, 3, 1))
sketch14.addConstraint(Sketcher.Constraint("Coincident", 3, 2, 0, 1))
sketch14.addConstraint(Sketcher.Constraint("Horizontal", 0))
sketch14.addConstraint(Sketcher.Constraint("Vertical", 1))
sketch14.addConstraint(Sketcher.Constraint("Horizontal", 2))
sketch14.addConstraint(Sketcher.Constraint("Vertical", 3))
sketch14.addConstraint(Sketcher.Constraint("DistanceY", 1, 2, 1, 1, Q("2 in")))
sketch14.addConstraint(Sketcher.Constraint("DistanceY", 0, 2, -1, 1, Q("0.5 in")))
sketch14.addConstraint(Sketcher.Constraint("DistanceX", 0, 1, 0, 2, Q("0.175 in")))
sketch14.addConstraint(Sketcher.Constraint("DistanceX", -1, 1, 2, 2, Q("0.35 in")))
pocket13 = body.newObject("PartDesign::Pocket", "Pocket012")
pocket13.Profile = sketch14
pocket13.Length = Q("5 in")
pocket13.Reversed = True

sketch15 = body.newObject("Sketcher::SketchObject", "Sketch014")
sketch15.AttachmentSupport = (doc.getObject("XY_Plane"), [""])
sketch15.MapMode = "FlatFace"
sketch15.AttachmentOffset = App.Placement(App.Vector(0, 0, 0.25 * 25.4), App.Rotation())
sketch15.addGeometry(Part.LineSegment(App.Vector(25.4, -12.7, 0), App.Vector(25.4, 76.2, 0)), False)
sketch15.addGeometry(Part.LineSegment(App.Vector(25.4, 76.2, 0), App.Vector(22.9, 76.2, 0)), False)
sketch15.addGeometry(Part.LineSegment(App.Vector(22.9, 76.2, 0), App.Vector(22.9, -12.7, 0)), False)
sketch15.addGeometry(Part.LineSegment(App.Vector(22.9, -12.7, 0), App.Vector(25.4, -12.7, 0)), False)
sketch15.addConstraint(Sketcher.Constraint("Coincident", 0, 2, 1, 1))
sketch15.addConstraint(Sketcher.Constraint("Coincident", 1, 2, 2, 1))
sketch15.addConstraint(Sketcher.Constraint("Coincident", 2, 2, 3, 1))
sketch15.addConstraint(Sketcher.Constraint("Coincident", 3, 2, 0, 1))
sketch15.addConstraint(Sketcher.Constraint("Vertical", 0))
sketch15.addConstraint(Sketcher.Constraint("Horizontal", 1))
sketch15.addConstraint(Sketcher.Constraint("Vertical", 2))
sketch15.addConstraint(Sketcher.Constraint("Horizontal", 3))
sketch15.addConstraint(Sketcher.Constraint("DistanceX", 1, 2, 1, 1, Q("0.1 in")))
sketch15.addConstraint(Sketcher.Constraint("DistanceY", 0, 1, 0, 2, Q("3.5 in")))
sketch15.addConstraint(Sketcher.Constraint("DistanceX", -1, 1, 0, 2, Q("1 in")))
sketch15.addConstraint(Sketcher.Constraint("DistanceY", -1, 1, 0, 2, Q("3 in")))
pocket14 = body.newObject("PartDesign::Pocket", "Pocket013")
pocket14.Profile = sketch15
pocket14.Length = Q("5 in")

sketch16 = body.newObject("Sketcher::SketchObject", "Sketch015")
sketch16.AttachmentSupport = (doc.getObject("YZ_Plane"), [""])
sketch16.MapMode = "FlatFace"
sketch16.AttachmentOffset = App.Placement(App.Vector(0, 0, 0.9 * 25.4), App.Rotation())
sketch16.addGeometry(Part.Circle(App.Vector(68.6, -38.1, 0), App.Vector(0, 0, 1), 3.2), False)
sketch16.addGeometry(Part.Circle(App.Vector(7.6, -38.1, 0), App.Vector(0, 0, 1), 3.2), False)
sketch16.addConstraint(Sketcher.Constraint("Equal", 0, 1))
sketch16.addConstraint(Sketcher.Constraint("Horizontal", 0, 3, 1, 3))
sketch16.addConstraint(Sketcher.Constraint("Diameter", 0, Q("0.25 in")))
sketch16.addConstraint(Sketcher.Constraint("DistanceX", -1, 1, 0, 3, Q("2.7 in")))
sketch16.addConstraint(Sketcher.Constraint("DistanceY", 0, 3, -1, 1, Q("1.5 in")))
sketch16.addConstraint(Sketcher.Constraint("DistanceX", -1, 1, 1, 3, Q("0.3 in")))
pocket15 = body.newObject("PartDesign::Pocket", "Pocket014")
pocket15.Profile = sketch16
pocket15.Length = Q("5 in")

sketch17 = body.newObject("Sketcher::SketchObject", "Sketch016")
sketch17.AttachmentSupport = (doc.getObject("YZ_Plane"), [""])
sketch17.MapMode = "FlatFace"
sketch17.AttachmentOffset = App.Placement(App.Vector(0, 0, 0.9 * 25.4), App.Rotation())
sketch17.addGeometry(Part.Circle(App.Vector(69, -38, 0), App.Vector(0, 0, 1), 6), False)
sketch17.addGeometry(Part.Circle(App.Vector(8, -38, 0), App.Vector(0, 0, 1), 6), False)
sketch17.addConstraint(Sketcher.Constraint("Equal", 0, 1))
sketch17.addConstraint(Sketcher.Constraint("Horizontal", 0, 3, 1, 3))
sketch17.addConstraint(Sketcher.Constraint("Diameter", 0, Q("0.45 in")))
sketch17.addConstraint(Sketcher.Constraint("DistanceX", -1, 1, 0, 3, Q("2.7 in")))
sketch17.addConstraint(Sketcher.Constraint("DistanceY", 0, 3, -1, 1, Q("1.5 in")))
sketch17.addConstraint(Sketcher.Constraint("DistanceX", -1, 1, 1, 3, Q("0.3 in")))
pocket16 = body.newObject("PartDesign::Pocket", "Pocket015")
pocket16.Profile = sketch17
pocket16.Length = Q("0.2 in")

sketch18 = body.newObject("Sketcher::SketchObject", "Sketch017")
sketch18.AttachmentSupport = (doc.getObject("YZ_Plane"), [""])
sketch18.MapMode = "FlatFace"
sketch18.AttachmentOffset = App.Placement(App.Vector(0, 0, 0.525 * 25.4), App.Rotation())
sketch18.addGeometry(Part.LineSegment(App.Vector(76.2, -63.5, 0), App.Vector(0, -63.5, 0)), False)
sketch18.addGeometry(Part.LineSegment(App.Vector(0, -63.5, 0), App.Vector(0, -12.7, 0)), False)
sketch18.addGeometry(Part.LineSegment(App.Vector(0, -12.7, 0), App.Vector(76.2, -12.7, 0)), False)
sketch18.addGeometry(Part.LineSegment(App.Vector(76.2, -12.7, 0), App.Vector(76.2, -63.5, 0)), False)
sketch18.addGeometry(Part.Circle(App.Vector(7.6, -38.1, 0), App.Vector(0, 0, 1), 3.2), False)
sketch18.addGeometry(Part.Circle(App.Vector(38.1, -38.1, 0), App.Vector(0, 0, 1), 11.3), False)
sketch18.addGeometry(Part.Circle(App.Vector(68.6, -38.1, 0), App.Vector(0, 0, 1), 3.2), False)
sketch18.addConstraint(Sketcher.Constraint("Coincident", 0, 2, 1, 1))
sketch18.addConstraint(Sketcher.Constraint("Coincident", 1, 2, 2, 1))
sketch18.addConstraint(Sketcher.Constraint("Coincident", 2, 2, 3, 1))
sketch18.addConstraint(Sketcher.Constraint("Coincident", 3, 2, 0, 1))
sketch18.addConstraint(Sketcher.Constraint("Horizontal", 0))
sketch18.addConstraint(Sketcher.Constraint("Vertical", 1))
sketch18.addConstraint(Sketcher.Constraint("Horizontal", 2))
sketch18.addConstraint(Sketcher.Constraint("Vertical", 3))
sketch18.addConstraint(Sketcher.Constraint("Equal", 4, 6))
sketch18.addConstraint(Sketcher.Constraint("PointOnObject", 0, 2, -2))
sketch18.addConstraint(Sketcher.Constraint("Horizontal", 4, 3, 5, 3))
sketch18.addConstraint(Sketcher.Constraint("Horizontal", 5, 3, 6, 3))
sketch18.addConstraint(Sketcher.Constraint("Diameter", 4, Q("0.25 in")))
sketch18.addConstraint(Sketcher.Constraint("DistanceX", 0, 2, 0, 1, Q("3 in")))
sketch18.addConstraint(Sketcher.Constraint("DistanceY", 1, 1, 1, 2, Q("2 in")))
sketch18.addConstraint(Sketcher.Constraint("Diameter", 5, Q("0.886 in")))
sketch18.addConstraint(Sketcher.Constraint("DistanceY", 0, 2, 4, 3, Q("1 in")))
sketch18.addConstraint(Sketcher.Constraint("DistanceX", -1, 1, 4, 3, Q("0.3 in")))
sketch18.addConstraint(Sketcher.Constraint("DistanceY", 4, 3, -1, 1, Q("1.5 in")))
sketch18.addConstraint(Sketcher.Constraint("DistanceX", -1, 1, 5, 3, Q("1.5 in")))
sketch18.addConstraint(Sketcher.Constraint("DistanceX", -1, 1, 6, 3, Q("2.7 in")))
pad2 = body.newObject("PartDesign::Pad", "Pad001")
pad2.Profile = sketch18
pad2.Length = Q("0.025 in")
pad2.Reversed = True

doc.recompute()
